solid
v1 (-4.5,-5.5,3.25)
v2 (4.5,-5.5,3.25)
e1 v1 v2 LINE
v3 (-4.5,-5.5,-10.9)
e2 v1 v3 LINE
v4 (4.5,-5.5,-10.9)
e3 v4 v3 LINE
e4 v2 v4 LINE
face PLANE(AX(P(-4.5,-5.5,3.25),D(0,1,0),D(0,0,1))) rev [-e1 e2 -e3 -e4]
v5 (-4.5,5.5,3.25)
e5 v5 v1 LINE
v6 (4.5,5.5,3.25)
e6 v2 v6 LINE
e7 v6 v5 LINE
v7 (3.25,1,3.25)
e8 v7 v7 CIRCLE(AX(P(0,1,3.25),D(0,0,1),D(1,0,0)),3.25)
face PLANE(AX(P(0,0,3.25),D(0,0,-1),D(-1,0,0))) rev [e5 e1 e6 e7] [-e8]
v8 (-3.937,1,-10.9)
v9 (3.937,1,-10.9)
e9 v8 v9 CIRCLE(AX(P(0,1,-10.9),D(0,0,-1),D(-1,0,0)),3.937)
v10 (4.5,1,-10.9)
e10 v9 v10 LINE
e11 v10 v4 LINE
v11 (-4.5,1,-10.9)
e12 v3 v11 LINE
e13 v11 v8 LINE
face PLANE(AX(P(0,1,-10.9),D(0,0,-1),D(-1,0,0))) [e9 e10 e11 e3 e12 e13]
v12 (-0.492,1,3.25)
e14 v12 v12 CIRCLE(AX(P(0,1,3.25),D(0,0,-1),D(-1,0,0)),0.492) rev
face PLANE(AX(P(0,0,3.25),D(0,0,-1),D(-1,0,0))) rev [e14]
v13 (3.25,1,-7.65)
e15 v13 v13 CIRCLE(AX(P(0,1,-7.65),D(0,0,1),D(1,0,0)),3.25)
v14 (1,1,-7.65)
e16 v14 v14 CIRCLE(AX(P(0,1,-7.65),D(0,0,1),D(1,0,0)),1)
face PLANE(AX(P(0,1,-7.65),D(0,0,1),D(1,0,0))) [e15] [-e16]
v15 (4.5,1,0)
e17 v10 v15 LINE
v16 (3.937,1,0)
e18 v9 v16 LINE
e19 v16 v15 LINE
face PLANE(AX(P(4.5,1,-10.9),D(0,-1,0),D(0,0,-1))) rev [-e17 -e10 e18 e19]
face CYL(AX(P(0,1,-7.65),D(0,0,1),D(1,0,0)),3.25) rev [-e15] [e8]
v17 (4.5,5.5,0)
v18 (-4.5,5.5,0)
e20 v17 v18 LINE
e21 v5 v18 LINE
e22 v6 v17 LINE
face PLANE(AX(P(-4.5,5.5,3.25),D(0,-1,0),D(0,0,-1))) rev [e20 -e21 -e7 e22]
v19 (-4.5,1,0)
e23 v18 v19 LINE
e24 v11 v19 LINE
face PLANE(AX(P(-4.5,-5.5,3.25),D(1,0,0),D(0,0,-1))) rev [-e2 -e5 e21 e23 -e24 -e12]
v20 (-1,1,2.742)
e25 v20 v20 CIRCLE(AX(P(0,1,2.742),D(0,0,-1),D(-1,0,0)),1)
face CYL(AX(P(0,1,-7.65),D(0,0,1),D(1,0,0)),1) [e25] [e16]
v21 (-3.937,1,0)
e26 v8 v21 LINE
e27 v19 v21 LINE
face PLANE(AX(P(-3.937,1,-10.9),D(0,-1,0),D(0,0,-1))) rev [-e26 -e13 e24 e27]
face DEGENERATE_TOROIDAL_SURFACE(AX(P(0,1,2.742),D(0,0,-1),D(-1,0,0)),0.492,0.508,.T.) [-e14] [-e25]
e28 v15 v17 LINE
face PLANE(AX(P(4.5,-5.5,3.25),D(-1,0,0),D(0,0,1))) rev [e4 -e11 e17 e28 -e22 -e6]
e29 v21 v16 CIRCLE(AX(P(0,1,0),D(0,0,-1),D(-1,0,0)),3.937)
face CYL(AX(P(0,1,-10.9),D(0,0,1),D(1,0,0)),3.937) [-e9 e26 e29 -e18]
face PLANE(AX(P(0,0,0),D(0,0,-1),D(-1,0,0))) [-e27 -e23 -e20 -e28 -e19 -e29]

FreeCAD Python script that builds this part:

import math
import FreeCAD as App
import Part
import Sketcher

V = App.Vector


def edges_at(feature, points):
    """Names of the edges that pass closest to the given points."""
    edges = feature.Shape.Edges
    near = lambda p: min(range(len(edges)), key=lambda i: edges[i].distToShape(Part.Vertex(*p))[0])
    return sorted({f"Edge{near(p) + 1}" for p in points})

doc = App.newDocument("Part")
body = doc.addObject("PartDesign::Body", "Body")

# Sketch on XY plane
sketch1 = doc.addObject("Sketcher::SketchObject", "Sketch")
body.addObject(sketch1)
sketch1.AttachmentSupport = (doc.XY_Plane, [""])
sketch1.MapMode = "FlatFace"
sketch1.addGeometry([
    Part.LineSegment(V(-4, 6, 0), V(-4, -6, 0)),
    Part.LineSegment(V(-4, -6, 0), V(4, -6, 0)),
    Part.LineSegment(V(4, -6, 0), V(4, 6, 0)),
    Part.LineSegment(V(4, 6, 0), V(-4, 6, 0)),
], False)
sketch1.addConstraint([
    Sketcher.Constraint("Coincident", 0, 2, 1, 1),
    Sketcher.Constraint("Coincident", 1, 2, 2, 1),
    Sketcher.Constraint("Coincident", 2, 2, 3, 1),
    Sketcher.Constraint("Coincident", 3, 2, 0, 1),
    Sketcher.Constraint("Vertical", 0),
    Sketcher.Constraint("Horizontal", 1),
    Sketcher.Constraint("Vertical", 2),
    Sketcher.Constraint("Horizontal", 3),
    Sketcher.Constraint("Symmetric", 0, 2, 2, 2, -1, 1),
    Sketcher.Constraint("DistanceX", 1, 1, 1, 2, 9.0),
    Sketcher.Constraint("DistanceY", 0, 2, 0, 1, 11.0),
])
pad1 = doc.addObject("PartDesign::Pad", "Pad")
body.addObject(pad1)
pad1.Profile = sketch1
pad1.Length = 3.25

# Sketch on XY plane
sketch2 = doc.addObject("Sketcher::SketchObject", "Sketch001")
body.addObject(sketch2)
sketch2.AttachmentSupport = (doc.XY_Plane, [""])
sketch2.MapMode = "FlatFace"
sketch2.addGeometry([
    Part.LineSegment(V(3.9, 1, 0), V(4.5, 1, 0)),  # 0
    Part.LineSegment(V(4.5, 1, 0), V(4.5, -5.5, 0)),  # 1
    Part.LineSegment(V(4.5, -5.5, 0), V(-4.5, -5.5, 0)),  # 2
    Part.LineSegment(V(-4.5, -5.5, 0), V(-4.5, 1, 0)),  # 3
    Part.LineSegment(V(-4.5, 1, 0), V(-3.9, 1, 0)),  # 4
    Part.ArcOfCircle(Part.Circle(V(0, 1, 0), V(0, 0, 1), 3.9), math.radians(0), math.radians(180)),  # 5
], False)
sketch2.addConstraint([
    Sketcher.Constraint("Coincident", 0, 2, 1, 1),
    Sketcher.Constraint("Coincident", 1, 2, 2, 1),
    Sketcher.Constraint("Coincident", 2, 2, 3, 1),
    Sketcher.Constraint("Coincident", 3, 2, 4, 1),
    Sketcher.Constraint("Coincident", 4, 2, 5, 2),
    Sketcher.Constraint("Coincident", 5, 1, 0, 1),
    Sketcher.Constraint("Horizontal", 0),
    Sketcher.Constraint("Vertical", 1),
    Sketcher.Constraint("Horizontal", 2),
    Sketcher.Constraint("Vertical", 3),
    Sketcher.Constraint("Horizontal", 4),
    Sketcher.Constraint("Symmetric", 0, 2, 3, 2, -2),
    Sketcher.Constraint("PointOnObject", 5, 3, -2),
    Sketcher.Constraint("Horizontal", 5, 3, 0, 2),
    Sketcher.Constraint("DistanceX", 2, 2, 2, 1, 9.0),
    Sketcher.Constraint("DistanceY", 1, 2, 1, 1, 6.5),
    Sketcher.Constraint("DistanceY", -1, 1, 5, 3, 1.0),
    Sketcher.Constraint("Radius", 5, 3.937),
])
pad2 = doc.addObject("PartDesign::Pad", "Pad001")
body.addObject(pad2)
pad2.Profile = sketch2
pad2.Length = 10.9
pad2.Reversed = True

# Sketch on XY plane
sketch3 = doc.addObject("Sketcher::SketchObject", "Sketch002")
body.addObject(sketch3)
sketch3.AttachmentSupport = (doc.XY_Plane, [""])
sketch3.MapMode = "FlatFace"
sketch3.AttachmentOffset = App.Placement(V(0, 0, 3.25), App.Rotation())
sketch3.addGeometry([
    Part.Circle(V(0, 1, 0), V(0, 0, 1), 3.2),
    Part.Circle(V(0, 1, 0), V(0, 0, 1), 1),
], False)
sketch3.addConstraint([
    Sketcher.Constraint("Coincident", 1, 3, 0, 3),
    Sketcher.Constraint("PointOnObject", 0, 3, -2),
    Sketcher.Constraint("Diameter", 1, 2.0),
    Sketcher.Constraint("Diameter", 0, 6.5),
    Sketcher.Constraint("DistanceY", -1, 1, 0, 3, 1.0),
])
pocket1 = doc.addObject("PartDesign::Pocket", "Pocket")
body.addObject(pocket1)
pocket1.Profile = sketch3
pocket1.Length = 10.9
doc.recompute()

fillet = doc.addObject("PartDesign::Fillet", "Fillet")
body.addObject(fillet)
fillet.Base = (pocket1, edges_at(pocket1, [(-1, 1, 3.25)]))
fillet.Radius = 0.508

doc.recompute()
